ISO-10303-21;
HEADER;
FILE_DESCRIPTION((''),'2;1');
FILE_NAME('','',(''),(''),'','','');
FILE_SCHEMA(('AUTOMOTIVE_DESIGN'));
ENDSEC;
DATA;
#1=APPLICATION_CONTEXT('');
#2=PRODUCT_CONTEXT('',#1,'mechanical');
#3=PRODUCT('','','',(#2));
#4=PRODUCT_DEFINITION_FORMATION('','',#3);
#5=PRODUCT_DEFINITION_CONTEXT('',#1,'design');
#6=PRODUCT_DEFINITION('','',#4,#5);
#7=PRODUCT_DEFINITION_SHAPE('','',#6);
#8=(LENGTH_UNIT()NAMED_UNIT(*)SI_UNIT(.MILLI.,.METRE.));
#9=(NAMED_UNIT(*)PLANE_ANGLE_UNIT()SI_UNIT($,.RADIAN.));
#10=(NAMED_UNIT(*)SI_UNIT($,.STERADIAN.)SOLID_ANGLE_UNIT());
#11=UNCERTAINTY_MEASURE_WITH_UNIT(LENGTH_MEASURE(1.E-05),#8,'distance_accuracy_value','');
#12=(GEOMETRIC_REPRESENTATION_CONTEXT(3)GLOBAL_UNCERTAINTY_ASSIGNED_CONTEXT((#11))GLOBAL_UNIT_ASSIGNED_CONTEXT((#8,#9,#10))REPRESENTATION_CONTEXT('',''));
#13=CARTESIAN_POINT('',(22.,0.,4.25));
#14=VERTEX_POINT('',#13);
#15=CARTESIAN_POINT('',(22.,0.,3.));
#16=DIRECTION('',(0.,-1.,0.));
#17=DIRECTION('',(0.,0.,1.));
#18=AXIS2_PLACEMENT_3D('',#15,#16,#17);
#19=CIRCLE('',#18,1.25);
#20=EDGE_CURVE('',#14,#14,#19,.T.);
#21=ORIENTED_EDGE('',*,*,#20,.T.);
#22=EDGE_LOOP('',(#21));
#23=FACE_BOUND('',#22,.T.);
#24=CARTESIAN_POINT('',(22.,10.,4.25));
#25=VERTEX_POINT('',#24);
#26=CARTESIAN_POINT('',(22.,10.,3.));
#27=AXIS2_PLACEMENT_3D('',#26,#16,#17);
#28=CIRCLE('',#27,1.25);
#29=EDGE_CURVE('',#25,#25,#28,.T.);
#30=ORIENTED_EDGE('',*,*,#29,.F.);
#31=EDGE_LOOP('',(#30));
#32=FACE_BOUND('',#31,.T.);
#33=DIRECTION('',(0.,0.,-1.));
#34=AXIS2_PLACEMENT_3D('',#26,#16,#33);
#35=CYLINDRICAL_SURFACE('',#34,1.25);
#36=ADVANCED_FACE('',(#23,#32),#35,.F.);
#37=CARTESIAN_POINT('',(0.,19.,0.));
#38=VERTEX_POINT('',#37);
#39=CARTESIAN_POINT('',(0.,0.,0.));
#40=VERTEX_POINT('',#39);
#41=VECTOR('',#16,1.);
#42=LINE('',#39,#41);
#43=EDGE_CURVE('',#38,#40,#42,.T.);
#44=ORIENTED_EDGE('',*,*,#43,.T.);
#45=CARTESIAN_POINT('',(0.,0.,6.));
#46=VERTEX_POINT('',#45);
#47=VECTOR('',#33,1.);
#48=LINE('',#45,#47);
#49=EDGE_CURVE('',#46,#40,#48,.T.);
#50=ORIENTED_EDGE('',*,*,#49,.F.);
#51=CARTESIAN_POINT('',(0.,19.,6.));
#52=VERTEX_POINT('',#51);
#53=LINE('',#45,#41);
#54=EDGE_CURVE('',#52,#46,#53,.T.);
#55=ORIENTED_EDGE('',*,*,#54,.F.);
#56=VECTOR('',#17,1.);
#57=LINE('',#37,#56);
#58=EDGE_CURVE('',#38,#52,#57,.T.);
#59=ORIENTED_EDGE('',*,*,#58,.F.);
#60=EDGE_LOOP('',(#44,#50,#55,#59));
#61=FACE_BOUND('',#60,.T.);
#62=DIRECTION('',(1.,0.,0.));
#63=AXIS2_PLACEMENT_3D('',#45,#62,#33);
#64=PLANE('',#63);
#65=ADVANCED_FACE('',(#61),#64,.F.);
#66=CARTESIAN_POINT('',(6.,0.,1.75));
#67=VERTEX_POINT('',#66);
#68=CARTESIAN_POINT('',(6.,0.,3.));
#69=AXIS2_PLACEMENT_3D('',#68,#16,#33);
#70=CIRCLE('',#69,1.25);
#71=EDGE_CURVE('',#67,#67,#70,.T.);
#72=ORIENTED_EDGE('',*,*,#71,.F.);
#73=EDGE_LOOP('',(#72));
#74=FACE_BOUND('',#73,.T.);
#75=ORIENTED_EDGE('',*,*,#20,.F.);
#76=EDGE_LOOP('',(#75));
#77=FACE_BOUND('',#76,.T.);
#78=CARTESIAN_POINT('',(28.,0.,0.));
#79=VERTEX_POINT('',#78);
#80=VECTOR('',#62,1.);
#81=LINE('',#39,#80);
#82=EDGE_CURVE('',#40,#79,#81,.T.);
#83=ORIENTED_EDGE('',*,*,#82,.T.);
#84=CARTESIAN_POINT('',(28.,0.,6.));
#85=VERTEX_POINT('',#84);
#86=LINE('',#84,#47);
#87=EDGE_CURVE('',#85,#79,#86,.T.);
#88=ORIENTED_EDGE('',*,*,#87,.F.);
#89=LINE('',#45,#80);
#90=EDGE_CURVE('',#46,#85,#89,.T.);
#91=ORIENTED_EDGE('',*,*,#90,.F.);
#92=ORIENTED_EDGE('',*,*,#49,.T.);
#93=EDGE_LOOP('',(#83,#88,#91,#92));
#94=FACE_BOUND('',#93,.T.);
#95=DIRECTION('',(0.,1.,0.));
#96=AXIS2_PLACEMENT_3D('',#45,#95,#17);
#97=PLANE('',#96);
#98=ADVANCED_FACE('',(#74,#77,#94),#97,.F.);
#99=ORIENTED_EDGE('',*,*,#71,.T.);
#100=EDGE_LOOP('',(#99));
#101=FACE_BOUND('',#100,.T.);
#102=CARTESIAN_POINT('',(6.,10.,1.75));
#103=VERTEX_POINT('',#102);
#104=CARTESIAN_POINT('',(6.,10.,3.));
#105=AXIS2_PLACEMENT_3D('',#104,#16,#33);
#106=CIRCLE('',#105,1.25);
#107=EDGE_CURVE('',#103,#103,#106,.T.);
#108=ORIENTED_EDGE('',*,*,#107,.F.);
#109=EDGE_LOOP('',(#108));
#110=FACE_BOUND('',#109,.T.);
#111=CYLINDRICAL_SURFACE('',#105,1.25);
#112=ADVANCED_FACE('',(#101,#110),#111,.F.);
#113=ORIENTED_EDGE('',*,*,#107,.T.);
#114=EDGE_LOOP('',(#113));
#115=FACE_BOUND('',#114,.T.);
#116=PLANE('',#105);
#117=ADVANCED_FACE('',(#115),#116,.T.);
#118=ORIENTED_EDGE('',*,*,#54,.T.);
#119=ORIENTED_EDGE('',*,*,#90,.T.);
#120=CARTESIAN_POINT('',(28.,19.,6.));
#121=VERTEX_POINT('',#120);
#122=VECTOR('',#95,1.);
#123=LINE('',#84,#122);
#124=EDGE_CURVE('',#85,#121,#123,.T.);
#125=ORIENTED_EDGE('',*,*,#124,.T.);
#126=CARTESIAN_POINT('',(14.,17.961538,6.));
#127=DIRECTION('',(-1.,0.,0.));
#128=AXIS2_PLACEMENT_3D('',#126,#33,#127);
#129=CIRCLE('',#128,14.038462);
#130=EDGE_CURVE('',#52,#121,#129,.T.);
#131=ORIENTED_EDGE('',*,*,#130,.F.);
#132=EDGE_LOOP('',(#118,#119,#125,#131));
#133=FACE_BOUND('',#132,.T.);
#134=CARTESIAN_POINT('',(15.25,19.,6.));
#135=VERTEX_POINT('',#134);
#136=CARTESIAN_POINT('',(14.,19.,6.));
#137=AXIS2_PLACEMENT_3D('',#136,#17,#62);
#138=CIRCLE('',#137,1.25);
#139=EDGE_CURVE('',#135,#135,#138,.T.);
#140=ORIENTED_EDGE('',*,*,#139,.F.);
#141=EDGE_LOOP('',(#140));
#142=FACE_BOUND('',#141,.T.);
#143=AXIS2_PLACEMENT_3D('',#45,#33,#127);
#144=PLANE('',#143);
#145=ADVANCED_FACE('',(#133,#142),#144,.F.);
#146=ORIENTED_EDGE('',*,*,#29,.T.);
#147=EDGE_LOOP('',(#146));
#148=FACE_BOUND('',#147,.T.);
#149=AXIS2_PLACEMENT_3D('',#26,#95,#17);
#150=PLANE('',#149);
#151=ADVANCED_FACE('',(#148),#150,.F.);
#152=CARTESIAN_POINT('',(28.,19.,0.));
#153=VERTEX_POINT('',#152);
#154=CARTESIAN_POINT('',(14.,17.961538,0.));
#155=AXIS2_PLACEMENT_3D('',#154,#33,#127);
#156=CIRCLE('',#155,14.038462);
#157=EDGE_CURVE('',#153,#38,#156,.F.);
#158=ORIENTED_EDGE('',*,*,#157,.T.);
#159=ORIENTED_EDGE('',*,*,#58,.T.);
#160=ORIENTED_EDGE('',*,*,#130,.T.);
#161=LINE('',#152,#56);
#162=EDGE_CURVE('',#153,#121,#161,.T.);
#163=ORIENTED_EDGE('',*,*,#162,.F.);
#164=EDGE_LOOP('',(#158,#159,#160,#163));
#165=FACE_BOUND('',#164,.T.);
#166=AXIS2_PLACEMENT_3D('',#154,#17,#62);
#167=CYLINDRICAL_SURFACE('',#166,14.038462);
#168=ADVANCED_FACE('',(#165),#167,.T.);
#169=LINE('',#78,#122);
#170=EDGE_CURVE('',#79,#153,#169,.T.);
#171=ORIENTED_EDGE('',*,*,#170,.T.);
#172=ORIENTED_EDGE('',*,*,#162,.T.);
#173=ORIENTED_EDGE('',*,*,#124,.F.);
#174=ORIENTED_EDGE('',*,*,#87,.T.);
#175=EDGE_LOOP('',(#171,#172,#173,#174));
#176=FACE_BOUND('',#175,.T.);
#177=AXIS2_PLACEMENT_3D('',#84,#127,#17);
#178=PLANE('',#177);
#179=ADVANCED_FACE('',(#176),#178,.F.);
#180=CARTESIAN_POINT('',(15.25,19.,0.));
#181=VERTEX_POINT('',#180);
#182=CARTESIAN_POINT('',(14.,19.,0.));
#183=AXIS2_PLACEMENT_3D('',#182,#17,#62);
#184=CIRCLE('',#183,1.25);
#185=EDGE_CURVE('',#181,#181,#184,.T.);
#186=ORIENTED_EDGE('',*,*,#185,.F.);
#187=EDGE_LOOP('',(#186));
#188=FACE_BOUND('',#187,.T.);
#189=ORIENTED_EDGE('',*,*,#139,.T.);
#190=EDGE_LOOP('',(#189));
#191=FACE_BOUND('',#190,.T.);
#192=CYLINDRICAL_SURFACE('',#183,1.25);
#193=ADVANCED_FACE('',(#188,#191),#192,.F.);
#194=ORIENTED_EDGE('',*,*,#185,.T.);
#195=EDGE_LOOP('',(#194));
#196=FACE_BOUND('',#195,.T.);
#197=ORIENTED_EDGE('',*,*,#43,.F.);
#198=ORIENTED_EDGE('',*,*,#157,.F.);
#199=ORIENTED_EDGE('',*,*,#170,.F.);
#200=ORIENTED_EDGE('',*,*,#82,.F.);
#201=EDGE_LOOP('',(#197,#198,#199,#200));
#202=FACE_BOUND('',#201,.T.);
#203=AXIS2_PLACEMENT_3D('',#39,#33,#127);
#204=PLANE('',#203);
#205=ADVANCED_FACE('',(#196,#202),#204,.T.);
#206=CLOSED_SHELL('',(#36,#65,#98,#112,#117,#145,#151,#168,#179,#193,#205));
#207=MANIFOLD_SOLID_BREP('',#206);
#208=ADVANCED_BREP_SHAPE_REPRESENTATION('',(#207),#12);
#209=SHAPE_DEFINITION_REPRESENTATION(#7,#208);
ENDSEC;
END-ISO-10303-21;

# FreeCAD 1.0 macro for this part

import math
import FreeCAD as App
import Part
import Sketcher
Q = App.Units.Quantity

doc = App.newDocument("Part")
body = doc.addObject("PartDesign::Body", "Body")

# Sketch on XY plane
sketch1 = body.newObject("Sketcher::SketchObject", "Sketch")
sketch1.AttachmentSupport = (doc.getObject("XY_Plane"), [""])
sketch1.MapMode = "FlatFace"
sketch1.addGeometry([
    Part.LineSegment(App.Vector(0, 32, 0), App.Vector(0, 0, 0)),
    Part.LineSegment(App.Vector(0, 0, 0), App.Vector(28, 0, 0)),
    Part.LineSegment(App.Vector(28, 0, 0), App.Vector(28, 32, 0)),
    Part.LineSegment(App.Vector(28, 32, 0), App.Vector(0, 32, 0)),
], False)
sketch1.addConstraint([
    Sketcher.Constraint("Coincident", 0, 2, 1, 1),
    Sketcher.Constraint("Coincident", 1, 2, 2, 1),
    Sketcher.Constraint("Coincident", 2, 2, 3, 1),
    Sketcher.Constraint("Coincident", 3, 2, 0, 1),
    Sketcher.Constraint("Vertical", 0),
    Sketcher.Constraint("Horizontal", 1),
    Sketcher.Constraint("Vertical", 2),
    Sketcher.Constraint("Horizontal", 3),
    Sketcher.Constraint("Coincident", 0, 2, -1, 1),
    Sketcher.Constraint("DistanceX", 1, 1, 1, 2, Q("28 mm")),
    Sketcher.Constraint("DistanceY", 0, 2, 0, 1, Q("32 mm")),
])
pad1 = body.newObject("PartDesign::Pad", "Pad")
pad1.Profile = sketch1
pad1.Length = 6

# Sketch on XZ plane
sketch2 = body.newObject("Sketcher::SketchObject", "Sketch001")
sketch2.AttachmentSupport = (doc.getObject("XZ_Plane"), [""])
sketch2.MapMode = "FlatFace"
sketch2.addGeometry([
    Part.Circle(App.Vector(6, 3, 0), App.Vector(0, 0, 1), 1.25),
    Part.Circle(App.Vector(22, 3, 0), App.Vector(0, 0, 1), 1.25),
], False)
sketch2.addConstraint([
    Sketcher.Constraint("Equal", 0, 1),
    Sketcher.Constraint("Horizontal", 0, 3, 1, 3),
    Sketcher.Constraint("Diameter", 0, Q("2.5 mm")),
    Sketcher.Constraint("DistanceX", -1, 1, 0, 3, Q("6 mm")),
    Sketcher.Constraint("DistanceY", -1, 1, 0, 3, Q("3 mm")),
    Sketcher.Constraint("DistanceX", -1, 1, 1, 3, Q("22 mm")),
])
pocket1 = body.newObject("PartDesign::Pocket", "Pocket")
pocket1.Profile = sketch2
pocket1.Length = 10

# Sketch on XY plane
sketch3 = body.newObject("Sketcher::SketchObject", "Sketch002")
sketch3.AttachmentSupport = (doc.getObject("XY_Plane"), [""])
sketch3.MapMode = "FlatFace"
sketch3.AttachmentOffset = App.Placement(App.Vector(0, 0, 6), App.Rotation())
sketch3.addGeometry(Part.Circle(App.Vector(14, 19, 0), App.Vector(0, 0, 1), 1.25), False)
sketch3.addConstraint([
    Sketcher.Constraint("Diameter", 0, Q("2.5 mm")),
    Sketcher.Constraint("DistanceX", -1, 1, 0, 3, Q("14 mm")),
    Sketcher.Constraint("DistanceY", -1, 1, 0, 3, Q("19 mm")),
])
pocket2 = body.newObject("PartDesign::Pocket", "Pocket001")
pocket2.Profile = sketch3
pocket2.Type = "ThroughAll"

# Sketch on XY plane
sketch4 = body.newObject("Sketcher::SketchObject", "Sketch003")
sketch4.AttachmentSupport = (doc.getObject("XY_Plane"), [""])
sketch4.MapMode = "FlatFace"
sketch4.AttachmentOffset = App.Placement(App.Vector(0, 0, 6), App.Rotation())
sketch4.addGeometry([
    Part.LineSegment(App.Vector(0, 33, 0), App.Vector(0, 19, 0)),
    Part.ArcOfCircle(Part.Circle(App.Vector(14, 17.961538, 0), App.Vector(0, 0, 1), 14.038462), math.radians(4.242193), math.radians(175.757807)),
    Part.LineSegment(App.Vector(28, 19, 0), App.Vector(28, 33, 0)),
    Part.LineSegment(App.Vector(28, 33, 0), App.Vector(0, 33, 0)),
], False)
sketch4.addConstraint([
    Sketcher.Constraint("Coincident", 0, 2, 1, 2),
    Sketcher.Constraint("Coincident", 1, 1, 2, 1),
    Sketcher.Constraint("Coincident", 2, 2, 3, 1),
    Sketcher.Constraint("Coincident", 3, 2, 0, 1),
    Sketcher.Constraint("Vertical", 0),
    Sketcher.Constraint("Vertical", 2),
    Sketcher.Constraint("Horizontal", 3),
    Sketcher.Constraint("PointOnObject", 0, 2, -2),
    Sketcher.Constraint("Horizontal", 0, 2, 1, 1),
    Sketcher.Constraint("DistanceX", 3, 2, 3, 1, Q("28 mm")),
    Sketcher.Constraint("DistanceY", 0, 2, 0, 1, Q("14 mm")),
    Sketcher.Constraint("DistanceY", -1, 1, 0, 2, Q("19 mm")),
    Sketcher.Constraint("Radius", 1, Q("14.038462 mm")),
])
pocket3 = body.newObject("PartDesign::Pocket", "Pocket002")
pocket3.Profile = sketch4
pocket3.Type = "ThroughAll"

doc.recompute()
